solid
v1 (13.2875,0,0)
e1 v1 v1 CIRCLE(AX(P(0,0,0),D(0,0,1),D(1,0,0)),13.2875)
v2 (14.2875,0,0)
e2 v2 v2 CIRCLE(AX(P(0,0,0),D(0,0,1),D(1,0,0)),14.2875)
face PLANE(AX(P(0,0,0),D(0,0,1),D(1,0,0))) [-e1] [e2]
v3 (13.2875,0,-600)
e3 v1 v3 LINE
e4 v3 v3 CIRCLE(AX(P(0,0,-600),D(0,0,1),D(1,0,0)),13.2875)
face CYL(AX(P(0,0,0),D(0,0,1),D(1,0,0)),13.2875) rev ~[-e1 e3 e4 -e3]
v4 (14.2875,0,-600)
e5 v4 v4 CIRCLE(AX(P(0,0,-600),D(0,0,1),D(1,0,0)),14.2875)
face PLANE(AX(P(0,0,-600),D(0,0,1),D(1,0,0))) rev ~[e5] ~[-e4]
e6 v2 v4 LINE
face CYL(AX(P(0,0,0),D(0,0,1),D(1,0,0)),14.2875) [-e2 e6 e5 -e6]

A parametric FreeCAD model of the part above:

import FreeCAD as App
import Part
import Sketcher

doc = App.newDocument("Part")
body = doc.addObject("PartDesign::Body", "Body")

# Sketch on XY plane
sketch1 = doc.addObject("Sketcher::SketchObject", "Sketch")
body.addObject(sketch1)
sketch1.AttachmentSupport = (doc.XY_Plane, [""])
sketch1.MapMode = "FlatFace"
sketch1.addGeometry(Part.Circle(App.Vector(0, 0, 0), App.Vector(0, 0, 1), 14), False)
sketch1.addGeometry(Part.Circle(App.Vector(0, 0, 0), App.Vector(0, 0, 1), 13), False)
sketch1.addConstraint(Sketcher.Constraint("Coincident", 0, 3, -1, 1))
sketch1.addConstraint(Sketcher.Constraint("Coincident", 1, 3, -1, 1))
sketch1.addConstraint(Sketcher.Constraint("Diameter", 0, 28.575))
sketch1.addConstraint(Sketcher.Constraint("Diameter", 1, 26.575))
pad1 = doc.addObject("PartDesign::Pad", "Pad")
body.addObject(pad1)
pad1.Profile = sketch1
pad1.Length = 600
pad1.Reversed = True

doc.recompute()
